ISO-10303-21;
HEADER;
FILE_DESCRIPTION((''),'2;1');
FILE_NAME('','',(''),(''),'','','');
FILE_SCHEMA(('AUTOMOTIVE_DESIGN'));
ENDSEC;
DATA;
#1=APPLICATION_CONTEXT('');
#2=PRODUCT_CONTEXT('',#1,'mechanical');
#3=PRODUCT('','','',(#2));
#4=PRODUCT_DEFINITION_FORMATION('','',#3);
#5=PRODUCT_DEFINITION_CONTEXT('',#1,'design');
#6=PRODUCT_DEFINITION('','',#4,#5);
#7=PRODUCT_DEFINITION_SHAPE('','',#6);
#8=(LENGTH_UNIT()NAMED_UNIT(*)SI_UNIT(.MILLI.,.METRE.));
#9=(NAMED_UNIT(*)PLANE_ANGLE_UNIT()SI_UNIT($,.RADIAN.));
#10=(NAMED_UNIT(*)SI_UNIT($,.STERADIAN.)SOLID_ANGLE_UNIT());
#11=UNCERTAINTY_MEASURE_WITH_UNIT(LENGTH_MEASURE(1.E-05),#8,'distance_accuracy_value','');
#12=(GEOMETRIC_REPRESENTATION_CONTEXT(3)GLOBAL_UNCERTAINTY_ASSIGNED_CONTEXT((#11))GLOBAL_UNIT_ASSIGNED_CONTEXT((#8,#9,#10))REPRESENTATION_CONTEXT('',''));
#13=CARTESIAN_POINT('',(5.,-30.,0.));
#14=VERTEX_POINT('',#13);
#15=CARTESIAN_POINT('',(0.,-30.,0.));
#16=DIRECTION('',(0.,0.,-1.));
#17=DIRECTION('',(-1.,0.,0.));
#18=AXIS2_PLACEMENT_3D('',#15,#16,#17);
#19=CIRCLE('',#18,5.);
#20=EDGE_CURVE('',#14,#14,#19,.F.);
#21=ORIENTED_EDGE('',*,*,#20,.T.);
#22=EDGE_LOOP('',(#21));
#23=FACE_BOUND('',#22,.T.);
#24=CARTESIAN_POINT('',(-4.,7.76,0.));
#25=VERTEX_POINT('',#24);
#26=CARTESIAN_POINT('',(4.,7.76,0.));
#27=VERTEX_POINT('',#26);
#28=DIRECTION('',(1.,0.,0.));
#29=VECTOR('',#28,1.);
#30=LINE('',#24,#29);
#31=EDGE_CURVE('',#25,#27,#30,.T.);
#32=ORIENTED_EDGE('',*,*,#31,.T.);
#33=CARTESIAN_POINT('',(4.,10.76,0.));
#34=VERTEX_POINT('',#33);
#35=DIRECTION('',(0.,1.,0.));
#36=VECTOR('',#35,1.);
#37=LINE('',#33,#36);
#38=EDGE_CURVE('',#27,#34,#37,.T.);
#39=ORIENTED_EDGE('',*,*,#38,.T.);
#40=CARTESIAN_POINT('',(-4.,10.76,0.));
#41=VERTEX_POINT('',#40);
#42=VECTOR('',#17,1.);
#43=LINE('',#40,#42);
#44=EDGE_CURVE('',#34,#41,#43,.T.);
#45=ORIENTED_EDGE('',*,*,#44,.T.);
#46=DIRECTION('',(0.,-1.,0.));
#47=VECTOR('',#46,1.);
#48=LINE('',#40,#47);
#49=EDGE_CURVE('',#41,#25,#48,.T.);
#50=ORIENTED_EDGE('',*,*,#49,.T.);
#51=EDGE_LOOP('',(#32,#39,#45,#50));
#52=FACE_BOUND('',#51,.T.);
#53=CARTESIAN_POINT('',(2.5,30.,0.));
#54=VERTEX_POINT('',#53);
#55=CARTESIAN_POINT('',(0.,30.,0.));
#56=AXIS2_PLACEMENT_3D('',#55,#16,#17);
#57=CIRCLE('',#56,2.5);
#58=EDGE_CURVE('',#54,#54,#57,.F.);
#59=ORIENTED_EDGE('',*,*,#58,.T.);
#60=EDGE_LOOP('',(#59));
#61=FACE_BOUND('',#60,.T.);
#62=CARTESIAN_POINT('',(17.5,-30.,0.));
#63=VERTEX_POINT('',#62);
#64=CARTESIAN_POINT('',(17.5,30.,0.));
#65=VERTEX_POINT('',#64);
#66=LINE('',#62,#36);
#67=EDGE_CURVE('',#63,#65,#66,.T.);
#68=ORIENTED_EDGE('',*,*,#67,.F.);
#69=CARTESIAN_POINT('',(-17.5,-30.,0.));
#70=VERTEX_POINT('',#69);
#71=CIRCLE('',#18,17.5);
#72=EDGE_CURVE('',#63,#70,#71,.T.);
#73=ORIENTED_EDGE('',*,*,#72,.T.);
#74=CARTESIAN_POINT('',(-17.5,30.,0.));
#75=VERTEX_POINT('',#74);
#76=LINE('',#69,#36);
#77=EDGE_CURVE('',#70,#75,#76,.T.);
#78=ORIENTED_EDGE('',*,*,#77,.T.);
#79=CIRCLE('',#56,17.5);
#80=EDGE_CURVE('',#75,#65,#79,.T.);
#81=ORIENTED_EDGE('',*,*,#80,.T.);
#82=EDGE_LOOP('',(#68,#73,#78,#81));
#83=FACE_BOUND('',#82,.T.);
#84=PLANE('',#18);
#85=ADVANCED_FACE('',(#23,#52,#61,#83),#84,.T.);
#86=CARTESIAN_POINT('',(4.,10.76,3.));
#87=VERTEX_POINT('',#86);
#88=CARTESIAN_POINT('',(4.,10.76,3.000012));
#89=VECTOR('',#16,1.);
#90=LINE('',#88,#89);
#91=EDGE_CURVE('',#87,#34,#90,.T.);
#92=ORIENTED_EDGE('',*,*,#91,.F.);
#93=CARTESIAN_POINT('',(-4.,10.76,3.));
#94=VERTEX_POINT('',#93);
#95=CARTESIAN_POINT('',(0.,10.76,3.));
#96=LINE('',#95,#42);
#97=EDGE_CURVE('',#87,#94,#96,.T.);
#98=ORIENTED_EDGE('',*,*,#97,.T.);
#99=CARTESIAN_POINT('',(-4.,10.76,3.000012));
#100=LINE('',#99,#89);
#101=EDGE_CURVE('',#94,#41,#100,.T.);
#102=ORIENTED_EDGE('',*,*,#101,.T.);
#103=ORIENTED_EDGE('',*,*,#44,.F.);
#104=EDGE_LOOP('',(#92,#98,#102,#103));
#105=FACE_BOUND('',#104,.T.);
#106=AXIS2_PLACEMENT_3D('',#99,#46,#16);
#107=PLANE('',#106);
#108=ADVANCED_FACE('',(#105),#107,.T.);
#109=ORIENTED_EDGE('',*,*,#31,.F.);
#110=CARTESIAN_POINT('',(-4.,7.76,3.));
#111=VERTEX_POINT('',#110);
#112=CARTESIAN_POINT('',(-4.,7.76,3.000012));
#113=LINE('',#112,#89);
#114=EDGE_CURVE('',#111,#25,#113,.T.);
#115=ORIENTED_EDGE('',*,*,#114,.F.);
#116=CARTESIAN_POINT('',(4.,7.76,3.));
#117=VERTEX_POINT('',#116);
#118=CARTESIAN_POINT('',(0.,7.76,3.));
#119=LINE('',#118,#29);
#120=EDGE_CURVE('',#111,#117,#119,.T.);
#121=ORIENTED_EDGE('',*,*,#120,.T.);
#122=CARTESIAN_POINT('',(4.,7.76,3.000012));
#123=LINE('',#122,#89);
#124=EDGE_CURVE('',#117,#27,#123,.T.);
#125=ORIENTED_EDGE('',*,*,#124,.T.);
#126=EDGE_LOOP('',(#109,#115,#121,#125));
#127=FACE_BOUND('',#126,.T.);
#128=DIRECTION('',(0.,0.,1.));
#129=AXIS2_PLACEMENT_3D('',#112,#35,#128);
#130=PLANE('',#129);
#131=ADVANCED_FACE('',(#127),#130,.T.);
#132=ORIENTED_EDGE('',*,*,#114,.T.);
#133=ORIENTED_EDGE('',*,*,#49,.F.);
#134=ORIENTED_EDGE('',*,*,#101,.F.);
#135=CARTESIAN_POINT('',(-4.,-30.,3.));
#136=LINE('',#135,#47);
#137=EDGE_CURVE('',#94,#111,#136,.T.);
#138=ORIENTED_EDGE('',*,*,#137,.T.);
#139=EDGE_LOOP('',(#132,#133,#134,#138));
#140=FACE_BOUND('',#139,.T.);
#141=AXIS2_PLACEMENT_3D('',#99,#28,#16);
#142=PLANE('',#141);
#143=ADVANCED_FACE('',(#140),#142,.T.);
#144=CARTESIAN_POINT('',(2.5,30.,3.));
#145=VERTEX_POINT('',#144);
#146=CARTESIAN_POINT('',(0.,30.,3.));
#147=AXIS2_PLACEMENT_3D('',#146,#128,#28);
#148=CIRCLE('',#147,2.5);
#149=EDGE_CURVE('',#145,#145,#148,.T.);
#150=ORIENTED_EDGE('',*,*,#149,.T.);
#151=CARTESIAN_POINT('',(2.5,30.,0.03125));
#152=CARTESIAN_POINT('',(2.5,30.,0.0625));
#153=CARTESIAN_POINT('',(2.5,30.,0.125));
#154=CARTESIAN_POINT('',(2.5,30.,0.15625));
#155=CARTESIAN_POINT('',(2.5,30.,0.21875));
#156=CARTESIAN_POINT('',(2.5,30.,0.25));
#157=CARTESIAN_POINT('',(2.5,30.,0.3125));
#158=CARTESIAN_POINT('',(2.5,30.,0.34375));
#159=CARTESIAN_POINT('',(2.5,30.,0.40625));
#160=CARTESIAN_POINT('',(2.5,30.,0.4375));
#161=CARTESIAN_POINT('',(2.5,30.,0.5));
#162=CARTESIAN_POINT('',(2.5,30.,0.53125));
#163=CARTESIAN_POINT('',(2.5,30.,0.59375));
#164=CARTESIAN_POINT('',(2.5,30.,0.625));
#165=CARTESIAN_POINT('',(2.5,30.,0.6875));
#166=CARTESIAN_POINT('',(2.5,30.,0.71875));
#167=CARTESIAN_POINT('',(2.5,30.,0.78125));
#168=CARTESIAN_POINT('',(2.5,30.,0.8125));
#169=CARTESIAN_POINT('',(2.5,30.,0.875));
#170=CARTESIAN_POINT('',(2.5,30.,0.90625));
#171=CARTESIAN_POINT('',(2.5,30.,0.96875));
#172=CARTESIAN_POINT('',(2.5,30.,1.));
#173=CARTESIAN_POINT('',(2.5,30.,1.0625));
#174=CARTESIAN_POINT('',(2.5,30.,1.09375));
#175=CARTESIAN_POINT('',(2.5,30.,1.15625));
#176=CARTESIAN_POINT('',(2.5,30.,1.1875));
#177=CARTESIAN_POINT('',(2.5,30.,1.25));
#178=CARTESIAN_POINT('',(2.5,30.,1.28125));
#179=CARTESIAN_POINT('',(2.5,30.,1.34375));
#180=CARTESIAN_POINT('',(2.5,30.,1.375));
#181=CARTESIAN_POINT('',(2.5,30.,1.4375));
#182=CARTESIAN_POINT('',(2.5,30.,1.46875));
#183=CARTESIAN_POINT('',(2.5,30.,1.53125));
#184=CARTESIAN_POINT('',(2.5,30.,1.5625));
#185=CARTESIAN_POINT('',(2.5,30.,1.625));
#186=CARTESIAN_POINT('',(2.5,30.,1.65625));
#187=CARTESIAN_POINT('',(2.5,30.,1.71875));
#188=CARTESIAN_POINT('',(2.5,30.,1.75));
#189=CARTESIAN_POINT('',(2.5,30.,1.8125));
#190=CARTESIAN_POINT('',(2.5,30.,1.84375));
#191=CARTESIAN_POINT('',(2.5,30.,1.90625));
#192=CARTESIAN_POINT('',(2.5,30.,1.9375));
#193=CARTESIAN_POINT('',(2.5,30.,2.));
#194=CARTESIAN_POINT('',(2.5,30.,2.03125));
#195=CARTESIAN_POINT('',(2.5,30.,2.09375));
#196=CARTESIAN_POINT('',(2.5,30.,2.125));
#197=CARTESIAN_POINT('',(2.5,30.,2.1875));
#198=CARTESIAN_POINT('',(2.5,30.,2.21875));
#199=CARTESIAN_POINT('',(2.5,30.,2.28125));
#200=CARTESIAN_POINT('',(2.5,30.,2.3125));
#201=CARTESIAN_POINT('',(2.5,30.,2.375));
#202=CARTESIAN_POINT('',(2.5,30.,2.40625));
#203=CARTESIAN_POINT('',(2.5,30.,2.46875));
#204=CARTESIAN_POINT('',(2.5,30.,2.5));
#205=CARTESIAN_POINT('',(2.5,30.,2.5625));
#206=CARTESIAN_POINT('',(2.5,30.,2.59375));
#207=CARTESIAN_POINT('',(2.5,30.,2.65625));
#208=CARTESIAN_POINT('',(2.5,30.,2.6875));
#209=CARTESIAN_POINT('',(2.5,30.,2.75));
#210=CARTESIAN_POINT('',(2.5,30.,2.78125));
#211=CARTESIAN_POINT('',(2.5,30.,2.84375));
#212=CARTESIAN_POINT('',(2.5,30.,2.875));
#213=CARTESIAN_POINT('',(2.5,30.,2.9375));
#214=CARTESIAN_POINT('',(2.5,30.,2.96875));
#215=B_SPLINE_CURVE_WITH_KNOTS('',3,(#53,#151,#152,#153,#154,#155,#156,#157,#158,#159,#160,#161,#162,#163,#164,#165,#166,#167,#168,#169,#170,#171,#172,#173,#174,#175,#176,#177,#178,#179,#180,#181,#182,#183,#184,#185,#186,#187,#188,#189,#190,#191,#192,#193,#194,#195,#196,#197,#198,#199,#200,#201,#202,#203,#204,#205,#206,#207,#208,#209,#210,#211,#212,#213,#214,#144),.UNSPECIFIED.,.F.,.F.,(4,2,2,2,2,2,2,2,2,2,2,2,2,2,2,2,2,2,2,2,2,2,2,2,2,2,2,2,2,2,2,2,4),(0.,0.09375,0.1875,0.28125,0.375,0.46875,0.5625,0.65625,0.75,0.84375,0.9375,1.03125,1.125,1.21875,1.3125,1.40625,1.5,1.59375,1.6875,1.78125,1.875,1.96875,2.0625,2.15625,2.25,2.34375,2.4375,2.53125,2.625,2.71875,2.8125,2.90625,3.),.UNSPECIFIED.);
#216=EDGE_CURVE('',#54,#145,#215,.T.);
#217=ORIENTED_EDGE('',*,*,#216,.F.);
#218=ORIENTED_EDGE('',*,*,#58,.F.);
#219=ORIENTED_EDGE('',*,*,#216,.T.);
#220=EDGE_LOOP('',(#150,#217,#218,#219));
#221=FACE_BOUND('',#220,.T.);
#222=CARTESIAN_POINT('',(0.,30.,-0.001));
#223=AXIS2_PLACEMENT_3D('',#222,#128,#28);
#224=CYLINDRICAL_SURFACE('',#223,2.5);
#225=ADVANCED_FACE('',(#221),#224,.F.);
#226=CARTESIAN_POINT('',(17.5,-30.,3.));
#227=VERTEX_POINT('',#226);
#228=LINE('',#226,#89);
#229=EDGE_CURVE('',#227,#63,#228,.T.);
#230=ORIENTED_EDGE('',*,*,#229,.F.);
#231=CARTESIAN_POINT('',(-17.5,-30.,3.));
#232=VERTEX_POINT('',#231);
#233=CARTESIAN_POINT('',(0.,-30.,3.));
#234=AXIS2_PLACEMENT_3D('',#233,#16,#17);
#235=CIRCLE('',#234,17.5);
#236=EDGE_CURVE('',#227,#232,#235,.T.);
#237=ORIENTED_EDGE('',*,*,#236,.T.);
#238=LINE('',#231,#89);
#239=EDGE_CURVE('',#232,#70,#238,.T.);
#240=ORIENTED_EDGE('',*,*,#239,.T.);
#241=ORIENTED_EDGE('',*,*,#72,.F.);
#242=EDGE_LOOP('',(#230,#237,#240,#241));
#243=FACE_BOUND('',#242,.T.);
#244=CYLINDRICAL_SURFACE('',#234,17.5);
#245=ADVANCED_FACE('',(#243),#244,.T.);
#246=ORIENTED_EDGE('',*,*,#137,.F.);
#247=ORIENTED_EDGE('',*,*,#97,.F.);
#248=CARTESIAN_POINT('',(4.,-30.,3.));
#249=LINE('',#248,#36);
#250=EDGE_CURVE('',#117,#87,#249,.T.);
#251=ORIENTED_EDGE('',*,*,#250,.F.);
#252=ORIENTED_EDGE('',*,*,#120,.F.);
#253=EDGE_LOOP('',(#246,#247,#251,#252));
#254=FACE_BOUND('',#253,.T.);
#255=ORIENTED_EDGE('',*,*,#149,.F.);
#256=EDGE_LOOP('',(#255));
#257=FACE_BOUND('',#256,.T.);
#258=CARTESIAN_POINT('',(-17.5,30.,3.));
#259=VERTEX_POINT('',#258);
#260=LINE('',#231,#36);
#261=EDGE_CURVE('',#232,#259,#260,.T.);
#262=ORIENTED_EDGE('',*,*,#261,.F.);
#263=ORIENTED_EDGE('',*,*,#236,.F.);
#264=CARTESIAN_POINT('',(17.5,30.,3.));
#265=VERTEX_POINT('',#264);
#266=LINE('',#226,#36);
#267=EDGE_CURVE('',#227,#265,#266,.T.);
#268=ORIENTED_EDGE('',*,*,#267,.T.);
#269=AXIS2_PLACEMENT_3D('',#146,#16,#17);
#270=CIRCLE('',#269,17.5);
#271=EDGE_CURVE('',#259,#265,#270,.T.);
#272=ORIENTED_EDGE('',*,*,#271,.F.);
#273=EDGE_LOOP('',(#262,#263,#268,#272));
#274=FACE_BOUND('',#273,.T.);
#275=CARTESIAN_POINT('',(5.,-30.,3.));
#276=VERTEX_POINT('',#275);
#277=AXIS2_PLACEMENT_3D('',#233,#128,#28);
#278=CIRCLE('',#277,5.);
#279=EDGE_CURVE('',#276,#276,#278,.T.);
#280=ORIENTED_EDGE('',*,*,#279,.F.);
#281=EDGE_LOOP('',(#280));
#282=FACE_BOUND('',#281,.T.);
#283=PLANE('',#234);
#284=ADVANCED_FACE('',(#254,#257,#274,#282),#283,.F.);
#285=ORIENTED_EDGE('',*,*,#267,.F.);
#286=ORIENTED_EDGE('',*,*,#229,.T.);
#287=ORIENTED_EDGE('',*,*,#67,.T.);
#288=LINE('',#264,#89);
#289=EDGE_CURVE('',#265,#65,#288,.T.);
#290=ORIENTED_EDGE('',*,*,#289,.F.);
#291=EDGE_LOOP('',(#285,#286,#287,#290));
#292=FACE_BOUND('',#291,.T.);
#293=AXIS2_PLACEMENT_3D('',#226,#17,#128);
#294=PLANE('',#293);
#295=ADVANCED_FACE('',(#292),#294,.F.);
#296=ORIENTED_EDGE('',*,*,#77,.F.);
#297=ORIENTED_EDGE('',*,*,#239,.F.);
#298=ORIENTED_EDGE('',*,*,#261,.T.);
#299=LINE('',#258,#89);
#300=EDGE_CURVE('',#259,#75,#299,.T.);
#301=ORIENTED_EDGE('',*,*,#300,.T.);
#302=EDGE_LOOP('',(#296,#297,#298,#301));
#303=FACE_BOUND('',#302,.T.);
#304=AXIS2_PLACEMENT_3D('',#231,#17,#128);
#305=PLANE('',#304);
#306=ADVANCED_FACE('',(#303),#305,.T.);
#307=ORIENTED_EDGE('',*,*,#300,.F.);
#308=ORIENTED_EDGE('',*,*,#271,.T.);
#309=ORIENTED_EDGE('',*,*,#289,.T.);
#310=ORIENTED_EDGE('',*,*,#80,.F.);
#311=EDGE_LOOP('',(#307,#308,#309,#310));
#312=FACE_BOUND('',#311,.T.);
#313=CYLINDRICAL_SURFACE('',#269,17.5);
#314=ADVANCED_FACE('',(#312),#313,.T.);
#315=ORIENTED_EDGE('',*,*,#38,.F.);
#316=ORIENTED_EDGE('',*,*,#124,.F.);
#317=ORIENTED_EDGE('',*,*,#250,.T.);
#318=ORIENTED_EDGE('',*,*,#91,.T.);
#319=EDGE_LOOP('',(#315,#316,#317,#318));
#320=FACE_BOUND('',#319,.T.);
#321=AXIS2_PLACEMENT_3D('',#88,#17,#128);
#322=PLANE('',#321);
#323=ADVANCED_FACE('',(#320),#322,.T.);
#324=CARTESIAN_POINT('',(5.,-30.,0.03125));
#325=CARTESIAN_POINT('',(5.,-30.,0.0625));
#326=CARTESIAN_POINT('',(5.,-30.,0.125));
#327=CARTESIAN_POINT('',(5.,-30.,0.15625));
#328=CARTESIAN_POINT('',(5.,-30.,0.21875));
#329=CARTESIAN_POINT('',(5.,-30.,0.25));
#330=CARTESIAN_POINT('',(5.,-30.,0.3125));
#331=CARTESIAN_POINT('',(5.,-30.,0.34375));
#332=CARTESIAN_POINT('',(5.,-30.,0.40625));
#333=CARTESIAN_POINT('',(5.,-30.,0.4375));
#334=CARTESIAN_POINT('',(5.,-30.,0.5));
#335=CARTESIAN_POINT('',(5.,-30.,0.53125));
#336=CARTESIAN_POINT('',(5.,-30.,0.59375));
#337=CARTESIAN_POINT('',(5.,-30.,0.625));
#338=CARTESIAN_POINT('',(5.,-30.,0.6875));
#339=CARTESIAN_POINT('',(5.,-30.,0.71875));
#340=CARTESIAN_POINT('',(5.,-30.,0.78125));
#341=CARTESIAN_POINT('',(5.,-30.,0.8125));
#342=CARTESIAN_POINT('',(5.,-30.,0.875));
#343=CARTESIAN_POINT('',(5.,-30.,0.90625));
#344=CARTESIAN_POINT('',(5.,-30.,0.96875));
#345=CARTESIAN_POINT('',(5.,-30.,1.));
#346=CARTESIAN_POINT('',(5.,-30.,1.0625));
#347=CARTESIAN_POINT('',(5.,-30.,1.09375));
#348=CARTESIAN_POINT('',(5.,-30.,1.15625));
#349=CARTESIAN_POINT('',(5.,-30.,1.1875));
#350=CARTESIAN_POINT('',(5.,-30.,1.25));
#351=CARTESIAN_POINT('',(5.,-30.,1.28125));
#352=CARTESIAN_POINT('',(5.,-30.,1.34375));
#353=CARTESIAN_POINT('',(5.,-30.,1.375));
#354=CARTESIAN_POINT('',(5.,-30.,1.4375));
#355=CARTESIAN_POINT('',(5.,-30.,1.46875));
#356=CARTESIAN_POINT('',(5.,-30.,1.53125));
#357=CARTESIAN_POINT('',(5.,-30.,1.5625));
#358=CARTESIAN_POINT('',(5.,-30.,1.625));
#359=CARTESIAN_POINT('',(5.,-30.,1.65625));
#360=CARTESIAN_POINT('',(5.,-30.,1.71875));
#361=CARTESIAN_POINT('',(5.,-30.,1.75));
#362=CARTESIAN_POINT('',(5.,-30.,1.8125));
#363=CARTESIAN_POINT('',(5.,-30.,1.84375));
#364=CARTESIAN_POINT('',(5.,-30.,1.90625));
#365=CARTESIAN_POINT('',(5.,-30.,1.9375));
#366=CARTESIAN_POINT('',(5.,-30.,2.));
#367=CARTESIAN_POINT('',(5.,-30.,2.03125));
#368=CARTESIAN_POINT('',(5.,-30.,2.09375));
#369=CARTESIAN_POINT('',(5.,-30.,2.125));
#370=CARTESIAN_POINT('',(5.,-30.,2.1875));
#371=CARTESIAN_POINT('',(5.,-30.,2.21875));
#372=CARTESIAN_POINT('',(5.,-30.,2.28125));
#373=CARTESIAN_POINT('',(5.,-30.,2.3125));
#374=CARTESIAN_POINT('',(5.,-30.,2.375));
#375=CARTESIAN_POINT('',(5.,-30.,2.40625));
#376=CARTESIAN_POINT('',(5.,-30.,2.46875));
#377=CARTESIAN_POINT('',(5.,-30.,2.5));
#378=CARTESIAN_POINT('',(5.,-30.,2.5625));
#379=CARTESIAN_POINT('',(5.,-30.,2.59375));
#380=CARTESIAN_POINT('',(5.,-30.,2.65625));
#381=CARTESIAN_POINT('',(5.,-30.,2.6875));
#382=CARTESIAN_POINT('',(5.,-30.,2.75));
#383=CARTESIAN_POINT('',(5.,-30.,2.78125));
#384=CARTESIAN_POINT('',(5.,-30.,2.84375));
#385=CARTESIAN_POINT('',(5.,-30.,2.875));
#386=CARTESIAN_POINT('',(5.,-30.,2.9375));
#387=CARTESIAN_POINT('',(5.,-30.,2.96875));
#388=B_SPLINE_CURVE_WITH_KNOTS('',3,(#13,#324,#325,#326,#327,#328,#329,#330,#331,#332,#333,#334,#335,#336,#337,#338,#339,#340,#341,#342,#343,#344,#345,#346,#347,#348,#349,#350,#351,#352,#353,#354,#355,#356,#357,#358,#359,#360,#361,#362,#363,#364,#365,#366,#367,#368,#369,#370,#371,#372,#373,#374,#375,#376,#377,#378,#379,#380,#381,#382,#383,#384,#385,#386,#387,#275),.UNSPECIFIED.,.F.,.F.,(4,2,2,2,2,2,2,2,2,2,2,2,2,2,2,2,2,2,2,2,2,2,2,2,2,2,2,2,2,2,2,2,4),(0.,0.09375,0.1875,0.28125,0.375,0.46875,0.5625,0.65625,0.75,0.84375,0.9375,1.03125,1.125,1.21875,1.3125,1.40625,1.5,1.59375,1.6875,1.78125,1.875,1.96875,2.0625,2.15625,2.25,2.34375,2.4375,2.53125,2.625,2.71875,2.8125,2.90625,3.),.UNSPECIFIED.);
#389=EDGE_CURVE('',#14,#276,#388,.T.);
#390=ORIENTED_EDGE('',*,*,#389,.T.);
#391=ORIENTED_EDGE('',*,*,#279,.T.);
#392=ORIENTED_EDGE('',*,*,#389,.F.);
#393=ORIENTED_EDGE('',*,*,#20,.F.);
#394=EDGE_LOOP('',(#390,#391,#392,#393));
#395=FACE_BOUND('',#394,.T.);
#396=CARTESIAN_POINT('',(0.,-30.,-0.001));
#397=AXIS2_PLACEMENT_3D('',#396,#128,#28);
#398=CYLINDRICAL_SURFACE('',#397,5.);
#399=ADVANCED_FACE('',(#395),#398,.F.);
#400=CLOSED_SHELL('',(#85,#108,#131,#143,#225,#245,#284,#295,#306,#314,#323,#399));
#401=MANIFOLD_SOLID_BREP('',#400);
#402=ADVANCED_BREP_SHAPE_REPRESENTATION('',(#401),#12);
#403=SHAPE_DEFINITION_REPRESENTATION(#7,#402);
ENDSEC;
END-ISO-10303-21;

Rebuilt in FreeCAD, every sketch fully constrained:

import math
import FreeCAD as App
import Part
import Sketcher
Q = App.Units.Quantity


def add_polygon(sketch, points):
    """Adds a closed chain of lines whose ends are joined by coincident constraints."""
    first, n = sketch.GeometryCount, len(points)
    for a, b in zip(points, points[1:] + points[:1]):
        sketch.addGeometry(Part.LineSegment(App.Vector(*a, 0), App.Vector(*b, 0)), False)
    for i in range(n):
        sketch.addConstraint(Sketcher.Constraint("Coincident", first + i, 2, first + (i + 1) % n, 1))

doc = App.newDocument("Part")
body = doc.addObject("PartDesign::Body", "Body")

# Sketch on XY plane
sketch1 = doc.addObject("Sketcher::SketchObject", "Sketch")
body.addObject(sketch1)
sketch1.AttachmentSupport = (doc.XY_Plane, [""])
sketch1.MapMode = "FlatFace"
sketch1.addGeometry(Part.LineSegment(App.Vector(-17.5, 30, 0), App.Vector(-17.5, -30, 0)), False)
sketch1.addGeometry(Part.ArcOfCircle(Part.Circle(App.Vector(0, -30, 0), App.Vector(0, 0, 1), 17.5), math.radians(180), math.radians(360)), False)
sketch1.addGeometry(Part.LineSegment(App.Vector(17.5, -30, 0), App.Vector(17.5, 30, 0)), False)
sketch1.addGeometry(Part.ArcOfCircle(Part.Circle(App.Vector(0, 30, 0), App.Vector(0, 0, 1), 17.5), math.radians(0), math.radians(180)), False)
sketch1.addConstraint(Sketcher.Constraint("Tangent", 0, 2, 1, 1))
sketch1.addConstraint(Sketcher.Constraint("Tangent", 1, 2, 2, 1))
sketch1.addConstraint(Sketcher.Constraint("Tangent", 2, 2, 3, 1))
sketch1.addConstraint(Sketcher.Constraint("Tangent", 3, 2, 0, 1))
sketch1.addConstraint(Sketcher.Constraint("Vertical", 0))
sketch1.addConstraint(Sketcher.Constraint("Vertical", 2))
sketch1.addConstraint(Sketcher.Constraint("Symmetric", 1, 3, 3, 3, -1, 1))
sketch1.addConstraint(Sketcher.Constraint("Radius", 1, Q("17.5 mm")))
sketch1.addConstraint(Sketcher.Constraint("DistanceY", 0, 2, 0, 1, Q("60 mm")))
pad1 = doc.addObject("PartDesign::Pad", "Pad")
body.addObject(pad1)
pad1.Profile = sketch1
pad1.Length = 3

# Sketch on XY plane
sketch2 = doc.addObject("Sketcher::SketchObject", "Sketch001")
body.addObject(sketch2)
sketch2.AttachmentSupport = (doc.XY_Plane, [""])
sketch2.MapMode = "FlatFace"
sketch2.AttachmentOffset = App.Placement(App.Vector(0, 0, 3), App.Rotation())
sketch2.addGeometry(Part.Circle(App.Vector(0, 30, 0), App.Vector(0, 0, 1), 2.5), False)
sketch2.addConstraint(Sketcher.Constraint("PointOnObject", 0, 3, -2))
sketch2.addConstraint(Sketcher.Constraint("Diameter", 0, Q("5 mm")))
sketch2.addConstraint(Sketcher.Constraint("DistanceY", -1, 1, 0, 3, Q("30 mm")))
pocket1 = doc.addObject("PartDesign::Pocket", "Pocket")
body.addObject(pocket1)
pocket1.Profile = sketch2
pocket1.Type = "UpToFirst"

# Sketch on XY plane
sketch3 = doc.addObject("Sketcher::SketchObject", "Sketch002")
body.addObject(sketch3)
sketch3.AttachmentSupport = (doc.XY_Plane, [""])
sketch3.MapMode = "FlatFace"
sketch3.AttachmentOffset = App.Placement(App.Vector(0, 0, 3), App.Rotation())
sketch3.addGeometry(Part.Circle(App.Vector(0, -30, 0), App.Vector(0, 0, 1), 5), False)
sketch3.addConstraint(Sketcher.Constraint("PointOnObject", 0, 3, -2))
sketch3.addConstraint(Sketcher.Constraint("Diameter", 0, Q("10 mm")))
sketch3.addConstraint(Sketcher.Constraint("DistanceY", 0, 3, -1, 1, Q("30 mm")))
pocket2 = doc.addObject("PartDesign::Pocket", "Pocket001")
body.addObject(pocket2)
pocket2.Profile = sketch3
pocket2.Type = "UpToFirst"

# Sketch on XY plane
sketch4 = doc.addObject("Sketcher::SketchObject", "Sketch003")
body.addObject(sketch4)
sketch4.AttachmentSupport = (doc.XY_Plane, [""])
sketch4.MapMode = "FlatFace"
sketch4.AttachmentOffset = App.Placement(App.Vector(0, 0, 3), App.Rotation())
add_polygon(sketch4, [(-4, 10.76), (-4, 7.76), (4, 7.76), (4, 10.76)])  # lines 0-3
sketch4.addConstraint(Sketcher.Constraint("Vertical", 0))
sketch4.addConstraint(Sketcher.Constraint("Horizontal", 1))
sketch4.addConstraint(Sketcher.Constraint("Vertical", 2))
sketch4.addConstraint(Sketcher.Constraint("Horizontal", 3))
sketch4.addConstraint(Sketcher.Constraint("DistanceX", 1, 1, 1, 2, Q("8 mm")))
sketch4.addConstraint(Sketcher.Constraint("DistanceY", 0, 2, 0, 1, Q("3 mm")))
sketch4.addConstraint(Sketcher.Constraint("DistanceX", 0, 2, -1, 1, Q("4 mm")))
sketch4.addConstraint(Sketcher.Constraint("DistanceY", -1, 1, 0, 2, Q("7.76 mm")))
pocket3 = doc.addObject("PartDesign::Pocket", "Pocket002")
body.addObject(pocket3)
pocket3.Profile = sketch4
pocket3.Type = "UpToFirst"

# Sketch on XY plane
sketch5 = doc.addObject("Sketcher::SketchObject", "Sketch004")
body.addObject(sketch5)
sketch5.AttachmentSupport = (doc.XY_Plane, [""])
sketch5.MapMode = "FlatFace"
sketch5.AttachmentOffset = App.Placement(App.Vector(0, 0, 3), App.Rotation())
add_polygon(sketch5, [(-4, 10.76), (-4, 7.76), (4, 7.76), (4, 10.76)])  # lines 0-3
sketch5.addConstraint(Sketcher.Constraint("Vertical", 0))
sketch5.addConstraint(Sketcher.Constraint("Horizontal", 1))
sketch5.addConstraint(Sketcher.Constraint("Vertical", 2))
sketch5.addConstraint(Sketcher.Constraint("Horizontal", 3))
sketch5.addConstraint(Sketcher.Constraint("DistanceX", 1, 1, 1, 2, Q("8 mm")))
sketch5.addConstraint(Sketcher.Constraint("DistanceY", 0, 2, 0, 1, Q("3 mm")))
sketch5.addConstraint(Sketcher.Constraint("DistanceX", 0, 2, -1, 1, Q("4 mm")))
sketch5.addConstraint(Sketcher.Constraint("DistanceY", -1, 1, 0, 2, Q("7.76 mm")))
pocket4 = doc.addObject("PartDesign::Pocket", "Pocket003")
body.addObject(pocket4)
pocket4.Profile = sketch5
pocket4.Length = 51.70996
pocket4.Reversed = True

doc.recompute()
